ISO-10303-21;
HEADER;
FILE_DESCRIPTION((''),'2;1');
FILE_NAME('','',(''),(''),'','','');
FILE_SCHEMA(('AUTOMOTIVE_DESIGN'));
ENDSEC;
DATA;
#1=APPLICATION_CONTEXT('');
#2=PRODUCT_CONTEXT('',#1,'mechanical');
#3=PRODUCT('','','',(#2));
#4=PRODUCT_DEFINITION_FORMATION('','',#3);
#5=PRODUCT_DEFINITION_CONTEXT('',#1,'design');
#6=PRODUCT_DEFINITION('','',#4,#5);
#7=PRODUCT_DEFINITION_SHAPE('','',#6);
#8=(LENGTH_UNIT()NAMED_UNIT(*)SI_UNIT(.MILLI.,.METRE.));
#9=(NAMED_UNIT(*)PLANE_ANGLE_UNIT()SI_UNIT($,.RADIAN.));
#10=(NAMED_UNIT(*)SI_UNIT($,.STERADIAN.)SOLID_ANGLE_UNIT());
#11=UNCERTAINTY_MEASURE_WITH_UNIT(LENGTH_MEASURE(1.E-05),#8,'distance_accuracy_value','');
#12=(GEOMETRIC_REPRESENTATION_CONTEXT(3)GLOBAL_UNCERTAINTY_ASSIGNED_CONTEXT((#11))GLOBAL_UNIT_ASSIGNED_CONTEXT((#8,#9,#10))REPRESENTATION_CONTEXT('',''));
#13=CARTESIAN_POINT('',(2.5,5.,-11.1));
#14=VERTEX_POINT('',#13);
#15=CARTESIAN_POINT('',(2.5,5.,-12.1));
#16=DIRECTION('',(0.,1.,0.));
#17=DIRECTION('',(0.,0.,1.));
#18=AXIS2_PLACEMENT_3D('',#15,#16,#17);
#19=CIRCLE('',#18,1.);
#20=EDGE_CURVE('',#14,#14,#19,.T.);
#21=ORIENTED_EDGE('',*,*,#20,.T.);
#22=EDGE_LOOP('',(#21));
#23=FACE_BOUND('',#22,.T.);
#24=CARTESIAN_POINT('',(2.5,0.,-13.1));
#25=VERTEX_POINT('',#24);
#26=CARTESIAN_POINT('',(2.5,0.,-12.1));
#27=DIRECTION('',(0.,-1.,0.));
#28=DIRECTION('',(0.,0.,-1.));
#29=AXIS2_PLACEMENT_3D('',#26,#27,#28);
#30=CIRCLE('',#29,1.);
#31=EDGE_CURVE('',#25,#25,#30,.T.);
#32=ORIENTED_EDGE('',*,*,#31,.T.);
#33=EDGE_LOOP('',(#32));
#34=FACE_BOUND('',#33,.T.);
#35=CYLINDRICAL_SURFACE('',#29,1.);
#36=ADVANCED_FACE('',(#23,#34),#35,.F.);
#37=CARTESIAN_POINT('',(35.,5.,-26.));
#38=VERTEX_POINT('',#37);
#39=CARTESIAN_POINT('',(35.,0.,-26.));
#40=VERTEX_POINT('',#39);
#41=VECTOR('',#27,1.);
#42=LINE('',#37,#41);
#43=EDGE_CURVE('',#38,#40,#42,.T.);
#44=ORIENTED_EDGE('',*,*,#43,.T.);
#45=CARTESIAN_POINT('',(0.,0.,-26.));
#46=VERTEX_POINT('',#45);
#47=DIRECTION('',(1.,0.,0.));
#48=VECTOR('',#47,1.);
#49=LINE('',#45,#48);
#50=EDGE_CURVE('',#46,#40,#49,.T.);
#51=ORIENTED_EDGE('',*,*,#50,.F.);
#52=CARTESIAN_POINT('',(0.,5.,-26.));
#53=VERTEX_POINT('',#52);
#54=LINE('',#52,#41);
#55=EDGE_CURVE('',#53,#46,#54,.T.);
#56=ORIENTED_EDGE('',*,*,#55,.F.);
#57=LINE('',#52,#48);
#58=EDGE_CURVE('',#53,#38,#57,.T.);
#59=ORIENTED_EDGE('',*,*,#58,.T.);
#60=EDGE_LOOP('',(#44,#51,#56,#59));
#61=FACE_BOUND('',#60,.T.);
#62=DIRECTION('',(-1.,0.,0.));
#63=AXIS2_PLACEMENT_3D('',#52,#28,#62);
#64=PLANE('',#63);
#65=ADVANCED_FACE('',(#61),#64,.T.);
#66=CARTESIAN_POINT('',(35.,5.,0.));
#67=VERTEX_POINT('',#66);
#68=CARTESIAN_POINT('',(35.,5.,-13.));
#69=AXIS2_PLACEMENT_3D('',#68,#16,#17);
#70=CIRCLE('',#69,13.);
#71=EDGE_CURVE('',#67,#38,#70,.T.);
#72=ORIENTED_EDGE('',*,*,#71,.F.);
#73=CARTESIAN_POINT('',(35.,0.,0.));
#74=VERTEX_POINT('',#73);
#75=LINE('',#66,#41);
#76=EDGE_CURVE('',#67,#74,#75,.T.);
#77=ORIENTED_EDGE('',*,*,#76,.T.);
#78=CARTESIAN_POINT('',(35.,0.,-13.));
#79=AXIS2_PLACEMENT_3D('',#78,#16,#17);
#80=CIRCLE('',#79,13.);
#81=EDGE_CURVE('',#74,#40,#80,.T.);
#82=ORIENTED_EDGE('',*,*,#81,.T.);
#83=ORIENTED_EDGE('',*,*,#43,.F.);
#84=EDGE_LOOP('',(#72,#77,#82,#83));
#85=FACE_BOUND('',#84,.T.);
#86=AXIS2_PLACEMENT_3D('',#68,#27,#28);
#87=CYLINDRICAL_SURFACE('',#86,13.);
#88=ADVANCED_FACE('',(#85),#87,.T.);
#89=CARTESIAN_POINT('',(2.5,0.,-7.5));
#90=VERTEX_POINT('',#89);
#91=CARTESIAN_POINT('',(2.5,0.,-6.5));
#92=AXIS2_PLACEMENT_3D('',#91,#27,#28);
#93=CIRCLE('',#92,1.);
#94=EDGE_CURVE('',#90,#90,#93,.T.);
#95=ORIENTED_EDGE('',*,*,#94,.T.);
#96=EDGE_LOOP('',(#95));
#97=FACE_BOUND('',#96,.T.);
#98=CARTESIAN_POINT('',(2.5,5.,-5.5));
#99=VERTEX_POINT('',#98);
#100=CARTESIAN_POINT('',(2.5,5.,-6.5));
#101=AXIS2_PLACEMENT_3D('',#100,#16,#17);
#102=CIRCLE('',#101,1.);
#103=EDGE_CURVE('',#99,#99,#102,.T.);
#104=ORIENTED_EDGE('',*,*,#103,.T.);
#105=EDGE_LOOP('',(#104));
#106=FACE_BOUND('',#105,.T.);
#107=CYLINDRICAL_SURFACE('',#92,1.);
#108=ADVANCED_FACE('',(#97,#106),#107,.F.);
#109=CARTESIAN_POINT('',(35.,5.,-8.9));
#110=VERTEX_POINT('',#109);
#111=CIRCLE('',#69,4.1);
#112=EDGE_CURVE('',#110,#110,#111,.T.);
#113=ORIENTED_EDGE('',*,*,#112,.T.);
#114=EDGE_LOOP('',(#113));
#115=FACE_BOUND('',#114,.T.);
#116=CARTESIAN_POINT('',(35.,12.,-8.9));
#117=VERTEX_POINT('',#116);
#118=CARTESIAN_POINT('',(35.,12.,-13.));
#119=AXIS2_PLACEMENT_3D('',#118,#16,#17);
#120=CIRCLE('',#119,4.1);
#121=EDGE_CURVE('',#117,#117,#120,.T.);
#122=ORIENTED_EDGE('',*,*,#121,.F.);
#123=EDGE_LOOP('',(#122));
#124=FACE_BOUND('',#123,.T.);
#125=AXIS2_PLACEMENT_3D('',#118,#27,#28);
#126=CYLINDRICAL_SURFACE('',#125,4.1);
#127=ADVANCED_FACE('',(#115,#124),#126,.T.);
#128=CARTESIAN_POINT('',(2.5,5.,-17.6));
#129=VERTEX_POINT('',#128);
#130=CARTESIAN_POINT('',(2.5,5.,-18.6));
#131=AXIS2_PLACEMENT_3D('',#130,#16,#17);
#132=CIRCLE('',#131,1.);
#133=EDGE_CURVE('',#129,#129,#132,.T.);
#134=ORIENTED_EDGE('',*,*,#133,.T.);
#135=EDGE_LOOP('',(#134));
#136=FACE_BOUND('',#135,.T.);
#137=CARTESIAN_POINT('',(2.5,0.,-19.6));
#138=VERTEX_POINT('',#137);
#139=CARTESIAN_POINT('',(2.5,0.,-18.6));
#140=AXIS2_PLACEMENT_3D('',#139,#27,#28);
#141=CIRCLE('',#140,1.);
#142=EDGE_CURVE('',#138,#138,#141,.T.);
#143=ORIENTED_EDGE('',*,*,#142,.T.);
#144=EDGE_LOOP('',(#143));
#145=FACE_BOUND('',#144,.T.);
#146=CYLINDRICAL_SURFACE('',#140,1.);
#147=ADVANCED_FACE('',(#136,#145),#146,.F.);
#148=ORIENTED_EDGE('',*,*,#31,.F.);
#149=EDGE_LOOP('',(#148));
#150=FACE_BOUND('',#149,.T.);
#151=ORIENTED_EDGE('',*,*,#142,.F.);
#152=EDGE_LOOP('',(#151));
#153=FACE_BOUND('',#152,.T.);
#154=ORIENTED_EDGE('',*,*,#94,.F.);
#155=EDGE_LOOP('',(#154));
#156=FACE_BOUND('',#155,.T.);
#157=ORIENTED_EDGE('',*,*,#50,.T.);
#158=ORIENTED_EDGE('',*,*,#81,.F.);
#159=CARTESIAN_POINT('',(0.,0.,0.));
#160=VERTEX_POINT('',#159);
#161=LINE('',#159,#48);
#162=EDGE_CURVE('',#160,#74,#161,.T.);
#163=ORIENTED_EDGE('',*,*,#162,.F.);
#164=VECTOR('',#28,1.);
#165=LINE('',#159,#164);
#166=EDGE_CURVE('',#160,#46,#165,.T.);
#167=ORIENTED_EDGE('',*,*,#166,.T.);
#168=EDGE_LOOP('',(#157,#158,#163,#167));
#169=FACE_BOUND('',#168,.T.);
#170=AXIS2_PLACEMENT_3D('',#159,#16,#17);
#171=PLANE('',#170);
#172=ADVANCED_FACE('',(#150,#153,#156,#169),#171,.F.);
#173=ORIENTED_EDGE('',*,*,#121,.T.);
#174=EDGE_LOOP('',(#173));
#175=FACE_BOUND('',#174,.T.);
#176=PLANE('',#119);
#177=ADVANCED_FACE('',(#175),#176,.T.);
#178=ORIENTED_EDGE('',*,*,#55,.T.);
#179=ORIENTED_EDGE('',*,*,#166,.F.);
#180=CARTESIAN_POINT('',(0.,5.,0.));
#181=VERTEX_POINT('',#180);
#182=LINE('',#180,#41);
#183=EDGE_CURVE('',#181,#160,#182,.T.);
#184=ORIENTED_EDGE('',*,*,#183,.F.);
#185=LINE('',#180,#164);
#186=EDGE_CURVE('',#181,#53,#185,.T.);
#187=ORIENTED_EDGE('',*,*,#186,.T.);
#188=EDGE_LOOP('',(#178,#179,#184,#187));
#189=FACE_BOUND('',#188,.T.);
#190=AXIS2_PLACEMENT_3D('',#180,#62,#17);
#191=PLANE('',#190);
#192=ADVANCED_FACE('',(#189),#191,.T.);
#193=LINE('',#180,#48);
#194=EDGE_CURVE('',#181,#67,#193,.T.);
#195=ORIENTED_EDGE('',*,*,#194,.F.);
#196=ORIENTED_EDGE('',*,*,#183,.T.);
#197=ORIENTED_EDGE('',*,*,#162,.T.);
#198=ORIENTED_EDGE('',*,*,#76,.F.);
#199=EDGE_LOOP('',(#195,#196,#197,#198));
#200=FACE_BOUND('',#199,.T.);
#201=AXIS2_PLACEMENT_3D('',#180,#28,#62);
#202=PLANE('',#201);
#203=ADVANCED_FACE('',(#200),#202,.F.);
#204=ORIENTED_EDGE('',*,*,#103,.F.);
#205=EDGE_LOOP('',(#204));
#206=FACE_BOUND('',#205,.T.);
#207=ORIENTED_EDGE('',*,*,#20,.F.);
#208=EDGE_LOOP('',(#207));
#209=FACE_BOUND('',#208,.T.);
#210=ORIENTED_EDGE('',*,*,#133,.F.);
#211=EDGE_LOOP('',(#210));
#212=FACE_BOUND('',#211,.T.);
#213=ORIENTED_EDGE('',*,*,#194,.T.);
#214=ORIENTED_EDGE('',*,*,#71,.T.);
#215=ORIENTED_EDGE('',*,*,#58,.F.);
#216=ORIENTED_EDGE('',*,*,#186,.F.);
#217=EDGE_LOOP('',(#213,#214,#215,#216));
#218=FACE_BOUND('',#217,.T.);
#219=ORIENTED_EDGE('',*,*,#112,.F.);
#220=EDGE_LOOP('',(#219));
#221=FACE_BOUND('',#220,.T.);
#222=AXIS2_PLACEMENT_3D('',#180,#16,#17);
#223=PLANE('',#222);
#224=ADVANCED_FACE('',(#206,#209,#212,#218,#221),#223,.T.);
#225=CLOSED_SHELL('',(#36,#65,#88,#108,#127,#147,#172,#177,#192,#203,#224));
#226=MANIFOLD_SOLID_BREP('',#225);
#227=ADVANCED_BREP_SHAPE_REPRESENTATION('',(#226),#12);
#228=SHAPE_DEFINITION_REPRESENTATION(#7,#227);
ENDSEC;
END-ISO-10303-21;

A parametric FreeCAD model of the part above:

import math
import FreeCAD as App
import Part
import Sketcher
Q = App.Units.Quantity

doc = App.newDocument("Part")
body = doc.addObject("PartDesign::Body", "Body")

# Sketch on XZ plane
sketch1 = doc.addObject("Sketcher::SketchObject", "Sketch")
body.addObject(sketch1)
sketch1.AttachmentSupport = (doc.XZ_Plane, [""])
sketch1.MapMode = "FlatFace"
sketch1.addGeometry([
    Part.LineSegment(App.Vector(0, 0, 0), App.Vector(35, 0, 0)),  # 0
    Part.ArcOfCircle(Part.Circle(App.Vector(35, -13, 0), App.Vector(0, 0, 1), 13), math.radians(0), math.radians(90)),  # 1
    Part.ArcOfCircle(Part.Circle(App.Vector(35, -13, 0), App.Vector(0, 0, 1), 13), math.radians(-90), math.radians(0)),  # 2
    Part.LineSegment(App.Vector(35, -26, 0), App.Vector(0, -26, 0)),  # 3
    Part.LineSegment(App.Vector(0, -26, 0), App.Vector(0, 0, 0)),  # 4
], False)
sketch1.addConstraint([
    Sketcher.Constraint("Tangent", 0, 2, 1, 2),
    Sketcher.Constraint("Tangent", 1, 1, 2, 2),
    Sketcher.Constraint("Tangent", 2, 1, 3, 1),
    Sketcher.Constraint("Coincident", 3, 2, 4, 1),
    Sketcher.Constraint("Coincident", 4, 2, 0, 1),
    Sketcher.Constraint("Horizontal", 0),
    Sketcher.Constraint("Horizontal", 3),
    Sketcher.Constraint("Vertical", 4),
    Sketcher.Constraint("Coincident", 4, 2, -1, 1),
    Sketcher.Constraint("Equal", 1, 2),
    Sketcher.Constraint("Horizontal", 2, 3, 1, 1),
    Sketcher.Constraint("Radius", 1, Q("13 mm")),
    Sketcher.Constraint("DistanceX", 0, 1, 0, 2, Q("35 mm")),
])
pad1 = doc.addObject("PartDesign::Pad", "Pad")
body.addObject(pad1)
pad1.Profile = sketch1
pad1.Length = 5
pad1.Reversed = True

# Sketch on XZ plane
sketch2 = doc.addObject("Sketcher::SketchObject", "Sketch001")
body.addObject(sketch2)
sketch2.AttachmentSupport = (doc.XZ_Plane, [""])
sketch2.MapMode = "FlatFace"
sketch2.AttachmentOffset = App.Placement(App.Vector(0, 0, -5), App.Rotation())
sketch2.addGeometry(Part.Circle(App.Vector(35, -13, 0), App.Vector(0, 0, 1), 4.1), False)
sketch2.addConstraint([
    Sketcher.Constraint("Diameter", 0, Q("8.2 mm")),
    Sketcher.Constraint("DistanceX", -1, 1, 0, 3, Q("35 mm")),
    Sketcher.Constraint("DistanceY", 0, 3, -1, 1, Q("13 mm")),
])
pad2 = doc.addObject("PartDesign::Pad", "Pad001")
body.addObject(pad2)
pad2.Profile = sketch2
pad2.Length = 7
pad2.Reversed = True

# Sketch on XZ plane
sketch3 = doc.addObject("Sketcher::SketchObject", "Sketch002")
body.addObject(sketch3)
sketch3.AttachmentSupport = (doc.XZ_Plane, [""])
sketch3.MapMode = "FlatFace"
sketch3.addGeometry([
    Part.Circle(App.Vector(2.5, -6.5, 0), App.Vector(0, 0, 1), 1),
    Part.Circle(App.Vector(2.5, -12.1, 0), App.Vector(0, 0, 1), 1),
    Part.Circle(App.Vector(2.5, -18.6, 0), App.Vector(0, 0, 1), 1),
], False)
sketch3.addConstraint([
    Sketcher.Constraint("Equal", 0, 1),
    Sketcher.Constraint("Equal", 1, 2),
    Sketcher.Constraint("Vertical", 0, 3, 1, 3),
    Sketcher.Constraint("Vertical", 1, 3, 2, 3),
    Sketcher.Constraint("Diameter", 0, Q("2 mm")),
    Sketcher.Constraint("DistanceX", -1, 1, 0, 3, Q("2.5 mm")),
    Sketcher.Constraint("DistanceY", 0, 3, -1, 1, Q("6.5 mm")),
    Sketcher.Constraint("DistanceY", 1, 3, -1, 1, Q("12.1 mm")),
    Sketcher.Constraint("DistanceY", 2, 3, -1, 1, Q("18.6 mm")),
])
doc.recompute()
hole = doc.addObject("PartDesign::Hole", "Hole")
body.addObject(hole)
hole.Profile = sketch3
hole.ThreadType = "None"
hole.Diameter = 2
hole.DepthType = "Dimension"
hole.Depth = 7
hole.DrillPoint = "Angled"
hole.DrillPointAngle = 118

doc.recompute()
